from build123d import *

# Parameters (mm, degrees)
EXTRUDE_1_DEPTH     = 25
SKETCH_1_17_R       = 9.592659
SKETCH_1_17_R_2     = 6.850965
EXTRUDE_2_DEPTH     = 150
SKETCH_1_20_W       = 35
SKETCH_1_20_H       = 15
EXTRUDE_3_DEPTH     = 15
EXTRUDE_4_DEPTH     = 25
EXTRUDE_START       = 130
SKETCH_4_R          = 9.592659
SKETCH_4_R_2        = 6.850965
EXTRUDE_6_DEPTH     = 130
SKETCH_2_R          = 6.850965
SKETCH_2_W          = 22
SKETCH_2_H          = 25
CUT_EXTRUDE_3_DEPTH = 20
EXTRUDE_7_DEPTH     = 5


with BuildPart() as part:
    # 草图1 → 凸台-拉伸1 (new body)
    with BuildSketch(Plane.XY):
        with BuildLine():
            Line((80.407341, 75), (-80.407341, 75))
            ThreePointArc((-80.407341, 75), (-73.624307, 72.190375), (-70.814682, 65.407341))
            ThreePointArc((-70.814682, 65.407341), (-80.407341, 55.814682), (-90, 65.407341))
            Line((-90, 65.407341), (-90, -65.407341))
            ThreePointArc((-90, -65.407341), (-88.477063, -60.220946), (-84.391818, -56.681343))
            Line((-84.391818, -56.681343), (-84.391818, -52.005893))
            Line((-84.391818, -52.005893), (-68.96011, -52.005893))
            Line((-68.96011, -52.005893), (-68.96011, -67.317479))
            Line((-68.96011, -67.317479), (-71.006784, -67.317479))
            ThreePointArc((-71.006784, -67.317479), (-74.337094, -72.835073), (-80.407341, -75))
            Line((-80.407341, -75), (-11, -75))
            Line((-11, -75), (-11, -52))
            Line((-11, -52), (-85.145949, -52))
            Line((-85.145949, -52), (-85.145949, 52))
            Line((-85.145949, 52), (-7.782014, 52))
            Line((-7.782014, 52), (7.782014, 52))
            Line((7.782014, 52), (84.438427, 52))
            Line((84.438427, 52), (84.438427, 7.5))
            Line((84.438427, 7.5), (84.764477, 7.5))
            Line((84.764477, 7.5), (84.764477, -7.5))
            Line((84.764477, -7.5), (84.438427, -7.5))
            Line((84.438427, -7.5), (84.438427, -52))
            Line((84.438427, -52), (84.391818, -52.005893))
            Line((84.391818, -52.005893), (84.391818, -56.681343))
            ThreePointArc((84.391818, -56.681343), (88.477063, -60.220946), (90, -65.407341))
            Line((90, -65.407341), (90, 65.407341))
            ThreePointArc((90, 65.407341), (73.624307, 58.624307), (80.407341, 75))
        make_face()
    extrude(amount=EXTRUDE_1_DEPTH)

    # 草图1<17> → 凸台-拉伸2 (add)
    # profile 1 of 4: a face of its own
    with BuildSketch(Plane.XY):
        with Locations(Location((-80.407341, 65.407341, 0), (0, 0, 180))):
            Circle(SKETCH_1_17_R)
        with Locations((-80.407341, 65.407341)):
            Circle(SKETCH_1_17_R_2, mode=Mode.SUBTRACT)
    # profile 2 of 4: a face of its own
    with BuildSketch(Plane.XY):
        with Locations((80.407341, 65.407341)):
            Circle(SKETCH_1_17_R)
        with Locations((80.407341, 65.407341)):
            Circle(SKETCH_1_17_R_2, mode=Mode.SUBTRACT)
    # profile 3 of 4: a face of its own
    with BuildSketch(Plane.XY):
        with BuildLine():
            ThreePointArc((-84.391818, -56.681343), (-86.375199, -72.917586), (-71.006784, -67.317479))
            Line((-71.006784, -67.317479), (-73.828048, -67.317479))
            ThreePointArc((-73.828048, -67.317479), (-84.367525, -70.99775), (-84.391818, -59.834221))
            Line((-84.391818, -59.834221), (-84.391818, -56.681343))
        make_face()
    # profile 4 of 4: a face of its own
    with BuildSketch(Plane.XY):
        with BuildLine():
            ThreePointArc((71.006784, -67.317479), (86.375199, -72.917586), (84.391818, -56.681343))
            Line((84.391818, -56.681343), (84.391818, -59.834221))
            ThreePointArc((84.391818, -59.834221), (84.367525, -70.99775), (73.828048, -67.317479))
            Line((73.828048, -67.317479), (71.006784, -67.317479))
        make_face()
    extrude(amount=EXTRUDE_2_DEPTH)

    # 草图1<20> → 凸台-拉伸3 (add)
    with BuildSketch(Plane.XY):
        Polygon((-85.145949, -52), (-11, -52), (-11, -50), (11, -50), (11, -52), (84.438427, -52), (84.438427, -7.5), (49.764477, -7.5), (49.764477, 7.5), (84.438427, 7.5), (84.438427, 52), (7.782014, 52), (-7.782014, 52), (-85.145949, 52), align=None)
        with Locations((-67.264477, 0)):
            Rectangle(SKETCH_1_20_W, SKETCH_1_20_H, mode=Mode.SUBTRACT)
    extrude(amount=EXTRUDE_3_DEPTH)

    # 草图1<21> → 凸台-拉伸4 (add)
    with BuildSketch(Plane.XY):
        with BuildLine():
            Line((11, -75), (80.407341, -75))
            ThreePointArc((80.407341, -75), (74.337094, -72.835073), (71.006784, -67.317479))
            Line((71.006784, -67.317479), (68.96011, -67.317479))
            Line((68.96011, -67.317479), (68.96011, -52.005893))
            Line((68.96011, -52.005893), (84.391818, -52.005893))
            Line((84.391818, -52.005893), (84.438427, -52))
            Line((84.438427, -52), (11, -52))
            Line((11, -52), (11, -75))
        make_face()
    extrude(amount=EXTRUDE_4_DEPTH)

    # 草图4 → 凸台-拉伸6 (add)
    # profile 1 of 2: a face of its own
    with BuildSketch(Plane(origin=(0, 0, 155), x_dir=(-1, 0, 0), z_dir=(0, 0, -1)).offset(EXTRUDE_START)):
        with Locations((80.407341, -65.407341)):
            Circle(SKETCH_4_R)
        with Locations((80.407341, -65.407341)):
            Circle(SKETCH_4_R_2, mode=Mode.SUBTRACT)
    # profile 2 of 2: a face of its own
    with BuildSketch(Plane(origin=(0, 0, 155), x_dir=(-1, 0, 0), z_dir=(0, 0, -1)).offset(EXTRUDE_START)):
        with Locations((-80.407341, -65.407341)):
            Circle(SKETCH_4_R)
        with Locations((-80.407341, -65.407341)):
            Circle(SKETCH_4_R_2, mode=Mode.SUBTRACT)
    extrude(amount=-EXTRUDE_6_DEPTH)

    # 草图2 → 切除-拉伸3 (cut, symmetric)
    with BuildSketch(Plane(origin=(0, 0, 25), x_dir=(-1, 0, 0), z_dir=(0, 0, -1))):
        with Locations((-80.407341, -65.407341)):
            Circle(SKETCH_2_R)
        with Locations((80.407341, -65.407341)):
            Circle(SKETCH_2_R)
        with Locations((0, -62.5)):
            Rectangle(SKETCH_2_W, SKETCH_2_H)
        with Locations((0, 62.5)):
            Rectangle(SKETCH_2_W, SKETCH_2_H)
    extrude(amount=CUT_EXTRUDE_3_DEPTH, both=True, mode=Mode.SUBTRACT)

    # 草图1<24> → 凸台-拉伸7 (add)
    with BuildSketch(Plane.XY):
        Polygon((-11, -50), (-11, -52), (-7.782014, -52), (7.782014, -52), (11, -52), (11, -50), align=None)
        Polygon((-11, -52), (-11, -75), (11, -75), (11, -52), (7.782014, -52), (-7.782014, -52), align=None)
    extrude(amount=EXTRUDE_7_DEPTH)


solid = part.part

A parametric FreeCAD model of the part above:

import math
import FreeCAD as App
import Part
import Sketcher

V = App.Vector
Q = App.Units.Quantity

doc = App.newDocument("Part")
body = doc.addObject("PartDesign::Body", "Body")

# Sketch on XY plane
sketch1 = doc.addObject("Sketcher::SketchObject", "Sketch")
body.addObject(sketch1)
sketch1.AttachmentSupport = (doc.XY_Plane, [""])
sketch1.MapMode = "FlatFace"
sketch1.addGeometry(Part.LineSegment(V(80.407341, 75, 0), V(-80.407341, 75, 0)), False)
sketch1.addGeometry(Part.ArcOfCircle(Part.Circle(V(-80.407342, 65.40734, 0), V(0, 0, 1), 9.59266), math.radians(0.000005), math.radians(89.999995)), False)
sketch1.addGeometry(Part.ArcOfCircle(Part.Circle(V(-80.407341, 65.407341, 0), V(0, 0, 1), 9.592659), math.radians(180), math.radians(360)), False)
sketch1.addGeometry(Part.LineSegment(V(-90, 65.407341, 0), V(-90, -65.407341, 0)), False)
sketch1.addGeometry(Part.ArcOfCircle(Part.Circle(V(-80.407342, -65.407341, 0), V(0, 0, 1), 9.592658), math.radians(114.542445), math.radians(180.000002)), False)
sketch1.addGeometry(Part.LineSegment(V(-84.391818, -56.681343, 0), V(-84.391818, -52.005893, 0)), False)
sketch1.addGeometry(Part.LineSegment(V(-84.391818, -52.005893, 0), V(-68.96011, -52.005893, 0)), False)
sketch1.addGeometry(Part.LineSegment(V(-68.96011, -52.005893, 0), V(-68.96011, -67.317479, 0)), False)
sketch1.addGeometry(Part.LineSegment(V(-68.96011, -67.317479, 0), V(-71.006784, -67.317479, 0)), False)
sketch1.addGeometry(Part.ArcOfCircle(Part.Circle(V(-80.407341, -65.407341, 0), V(0, 0, 1), 9.592659), math.radians(-89.999997), math.radians(-11.485795)), False)
sketch1.addGeometry(Part.LineSegment(V(-80.407341, -75, 0), V(-11, -75, 0)), False)
sketch1.addGeometry(Part.LineSegment(V(-11, -75, 0), V(-11, -52, 0)), False)
sketch1.addGeometry(Part.LineSegment(V(-11, -52, 0), V(-85.145949, -52, 0)), False)
sketch1.addGeometry(Part.LineSegment(V(-85.145949, -52, 0), V(-85.145949, 52, 0)), False)
sketch1.addGeometry(Part.LineSegment(V(-85.145949, 52, 0), V(84.438427, 52, 0)), False)
sketch1.addGeometry(Part.LineSegment(V(84.438427, 52, 0), V(84.438427, 7.5, 0)), False)
sketch1.addGeometry(Part.LineSegment(V(84.438427, 7.5, 0), V(84.764477, 7.5, 0)), False)
sketch1.addGeometry(Part.LineSegment(V(84.764477, 7.5, 0), V(84.764477, -7.5, 0)), False)
sketch1.addGeometry(Part.LineSegment(V(84.764477, -7.5, 0), V(84.438427, -7.5, 0)), False)
sketch1.addGeometry(Part.LineSegment(V(84.438427, -7.5, 0), V(84.438427, -52, 0)), False)
sketch1.addGeometry(Part.LineSegment(V(84.438427, -52, 0), V(84.391818, -52.005893, 0)), False)
sketch1.addGeometry(Part.LineSegment(V(84.391818, -52.005893, 0), V(84.391818, -56.681343, 0)), False)
sketch1.addGeometry(Part.ArcOfCircle(Part.Circle(V(80.407342, -65.407341, 0), V(0, 0, 1), 9.592658), math.radians(-0.000002), math.radians(65.457555)), False)
sketch1.addGeometry(Part.LineSegment(V(90, -65.407341, 0), V(90, 65.407341, 0)), False)
sketch1.addGeometry(Part.ArcOfCircle(Part.Circle(V(80.407341, 65.407341, 0), V(0, 0, 1), 9.592659), math.radians(90.000001), math.radians(359.999999)), False)
sketch1.addConstraint(Sketcher.Constraint("Tangent", 0, 2, 1, 2))
sketch1.addConstraint(Sketcher.Constraint("Tangent", 1, 1, 2, 2))
sketch1.addConstraint(Sketcher.Constraint("Tangent", 2, 1, 3, 1))
sketch1.addConstraint(Sketcher.Constraint("Tangent", 3, 2, 4, 2))
sketch1.addConstraint(Sketcher.Constraint("Coincident", 4, 1, 5, 1))
sketch1.addConstraint(Sketcher.Constraint("Coincident", 5, 2, 6, 1))
sketch1.addConstraint(Sketcher.Constraint("Coincident", 6, 2, 7, 1))
sketch1.addConstraint(Sketcher.Constraint("Coincident", 7, 2, 8, 1))
sketch1.addConstraint(Sketcher.Constraint("Coincident", 8, 2, 9, 2))
sketch1.addConstraint(Sketcher.Constraint("Tangent", 9, 1, 10, 1))
sketch1.addConstraint(Sketcher.Constraint("Coincident", 10, 2, 11, 1))
sketch1.addConstraint(Sketcher.Constraint("Coincident", 11, 2, 12, 1))
sketch1.addConstraint(Sketcher.Constraint("Coincident", 12, 2, 13, 1))
sketch1.addConstraint(Sketcher.Constraint("Coincident", 13, 2, 14, 1))
sketch1.addConstraint(Sketcher.Constraint("Coincident", 14, 2, 15, 1))
sketch1.addConstraint(Sketcher.Constraint("Coincident", 15, 2, 16, 1))
sketch1.addConstraint(Sketcher.Constraint("Coincident", 16, 2, 17, 1))
sketch1.addConstraint(Sketcher.Constraint("Coincident", 17, 2, 18, 1))
sketch1.addConstraint(Sketcher.Constraint("Coincident", 18, 2, 19, 1))
sketch1.addConstraint(Sketcher.Constraint("Coincident", 19, 2, 20, 1))
sketch1.addConstraint(Sketcher.Constraint("Coincident", 20, 2, 21, 1))
sketch1.addConstraint(Sketcher.Constraint("Coincident", 21, 2, 22, 2))
sketch1.addConstraint(Sketcher.Constraint("Tangent", 22, 1, 23, 1))
sketch1.addConstraint(Sketcher.Constraint("Tangent", 23, 2, 24, 2))
sketch1.addConstraint(Sketcher.Constraint("Tangent", 24, 1, 0, 1))
sketch1.addConstraint(Sketcher.Constraint("Horizontal", 0))
sketch1.addConstraint(Sketcher.Constraint("Vertical", 3))
sketch1.addConstraint(Sketcher.Constraint("Vertical", 5))
sketch1.addConstraint(Sketcher.Constraint("Horizontal", 6))
sketch1.addConstraint(Sketcher.Constraint("Vertical", 7))
sketch1.addConstraint(Sketcher.Constraint("Horizontal", 8))
sketch1.addConstraint(Sketcher.Constraint("Horizontal", 10))
sketch1.addConstraint(Sketcher.Constraint("Vertical", 11))
sketch1.addConstraint(Sketcher.Constraint("Horizontal", 12))
sketch1.addConstraint(Sketcher.Constraint("Vertical", 13))
sketch1.addConstraint(Sketcher.Constraint("Horizontal", 14))
sketch1.addConstraint(Sketcher.Constraint("Vertical", 15))
sketch1.addConstraint(Sketcher.Constraint("Horizontal", 16))
sketch1.addConstraint(Sketcher.Constraint("Vertical", 17))
sketch1.addConstraint(Sketcher.Constraint("Horizontal", 18))
sketch1.addConstraint(Sketcher.Constraint("Vertical", 19))
sketch1.addConstraint(Sketcher.Constraint("Vertical", 21))
sketch1.addConstraint(Sketcher.Constraint("Vertical", 23))
sketch1.addConstraint(Sketcher.Constraint("Coincident", 9, 3, 4, 3))
sketch1.addConstraint(Sketcher.Constraint("Equal", 1, 2))
sketch1.addConstraint(Sketcher.Constraint("Equal", 2, 4))
sketch1.addConstraint(Sketcher.Constraint("Equal", 4, 9))
sketch1.addConstraint(Sketcher.Constraint("Equal", 9, 22))
sketch1.addConstraint(Sketcher.Constraint("Equal", 22, 24))
sketch1.addConstraint(Sketcher.Constraint("Symmetric", 1, 3, 22, 3, -1, 1))
sketch1.addConstraint(Sketcher.Constraint("Symmetric", 5, 2, 20, 2, -2))
sketch1.addConstraint(Sketcher.Constraint("Symmetric", 15, 2, 18, 2, -1))
sketch1.addConstraint(Sketcher.Constraint("Horizontal", 9, 3, 22, 3))
sketch1.addConstraint(Sketcher.Constraint("Horizontal", 24, 3, 1, 1))
sketch1.addConstraint(Sketcher.Constraint("Horizontal", 12, 2, 19, 2))
sketch1.addConstraint(Sketcher.Constraint("Equal", 15, 19))
sketch1.addConstraint(Sketcher.Constraint("DistanceY", 11, 1, 11, 2, Q("23 mm")))
sketch1.addConstraint(Sketcher.Constraint("DistanceY", 13, 1, 13, 2, Q("104 mm")))
sketch1.addConstraint(Sketcher.Constraint("DistanceY", 17, 2, 17, 1, Q("15 mm")))
sketch1.addConstraint(Sketcher.Constraint("DistanceX", 2, 1, -1, 1, Q("90 mm")))
sketch1.addConstraint(Sketcher.Constraint("DistanceX", 10, 2, -1, 1, Q("11 mm")))
sketch1.addConstraint(Sketcher.Constraint("Radius", 1, Q("9.59266 mm")))
sketch1.addConstraint(Sketcher.Constraint("DistanceY", 22, 1, 21, 2, Q("8.725998 mm")))
sketch1.addConstraint(Sketcher.Constraint("DistanceX", 12, 2, 12, 1, Q("74.145949 mm")))
sketch1.addConstraint(Sketcher.Constraint("DistanceX", 16, 1, 16, 2, Q("0.32605 mm")))
sketch1.addConstraint(Sketcher.Constraint("DistanceY", 5, 1, 5, 2, Q("4.67545 mm")))
sketch1.addConstraint(Sketcher.Constraint("Distance", 20, Q("0.04698 mm")))
sketch1.addConstraint(Sketcher.Constraint("DistanceX", 6, 1, 6, 2, Q("15.431708 mm")))
sketch1.addConstraint(Sketcher.Constraint("DistanceX", 8, 2, 8, 1, Q("2.046674 mm")))
pad1 = doc.addObject("PartDesign::Pad", "Pad")
body.addObject(pad1)
pad1.Profile = sketch1
pad1.Length = 25

# Sketch on XY plane
sketch2 = doc.addObject("Sketcher::SketchObject", "Sketch001")
body.addObject(sketch2)
sketch2.AttachmentSupport = (doc.XY_Plane, [""])
sketch2.MapMode = "FlatFace"
sketch2.addGeometry(Part.Circle(V(-80.4, 65.4, 0), V(0, 0, 1), 9.6), False)
sketch2.addGeometry(Part.Circle(V(-80.4, 65.4, 0), V(0, 0, 1), 6.9), False)
sketch2.addGeometry(Part.Circle(V(80.4, 65.4, 0), V(0, 0, 1), 9.6), False)
sketch2.addGeometry(Part.Circle(V(80.4, 65.4, 0), V(0, 0, 1), 6.9), False)
sketch2.addGeometry(Part.ArcOfCircle(Part.Circle(V(-80.4, -65.4, 0), V(0, 0, 1), 9.6), math.radians(115), math.radians(349)), False)
sketch2.addGeometry(Part.LineSegment(V(-71, -67.3, 0), V(-73.8, -67.3, 0)), False)
sketch2.addGeometry(Part.ArcOfCircle(Part.Circle(V(-80.4, -65.4, 0), V(0, 0, 1), 6.9), math.radians(126), math.radians(344)), False)
sketch2.addGeometry(Part.LineSegment(V(-84.4, -59.8, 0), V(-84.4, -56.7, 0)), False)
sketch2.addGeometry(Part.ArcOfCircle(Part.Circle(V(80.4, -65.4, 0), V(0, 0, 1), 9.6), math.radians(-169), math.radians(65)), False)
sketch2.addGeometry(Part.LineSegment(V(84.4, -56.7, 0), V(84.4, -59.8, 0)), False)
sketch2.addGeometry(Part.ArcOfCircle(Part.Circle(V(80.4, -65.4, 0), V(0, 0, 1), 6.9), math.radians(-164), math.radians(54)), False)
sketch2.addGeometry(Part.LineSegment(V(73.8, -67.3, 0), V(71, -67.3, 0)), False)
sketch2.addConstraint(Sketcher.Constraint("Coincident", 4, 2, 5, 1))
sketch2.addConstraint(Sketcher.Constraint("Coincident", 5, 2, 6, 2))
sketch2.addConstraint(Sketcher.Constraint("Coincident", 6, 1, 7, 1))
sketch2.addConstraint(Sketcher.Constraint("Coincident", 7, 2, 4, 1))
sketch2.addConstraint(Sketcher.Constraint("Coincident", 8, 2, 9, 1))
sketch2.addConstraint(Sketcher.Constraint("Coincident", 9, 2, 10, 2))
sketch2.addConstraint(Sketcher.Constraint("Coincident", 10, 1, 11, 1))
sketch2.addConstraint(Sketcher.Constraint("Coincident", 11, 2, 8, 1))
sketch2.addConstraint(Sketcher.Constraint("Horizontal", 5))
sketch2.addConstraint(Sketcher.Constraint("Vertical", 7))
sketch2.addConstraint(Sketcher.Constraint("Vertical", 9))
sketch2.addConstraint(Sketcher.Constraint("Horizontal", 11))
sketch2.addConstraint(Sketcher.Constraint("Coincident", 1, 3, 0, 3))
sketch2.addConstraint(Sketcher.Constraint("Coincident", 3, 3, 2, 3))
sketch2.addConstraint(Sketcher.Constraint("Coincident", 6, 3, 4, 3))
sketch2.addConstraint(Sketcher.Constraint("Coincident", 10, 3, 8, 3))
sketch2.addConstraint(Sketcher.Constraint("Equal", 0, 2))
sketch2.addConstraint(Sketcher.Constraint("Equal", 1, 3))
sketch2.addConstraint(Sketcher.Constraint("Equal", 2, 4))
sketch2.addConstraint(Sketcher.Constraint("Equal", 3, 6))
sketch2.addConstraint(Sketcher.Constraint("Equal", 4, 8))
sketch2.addConstraint(Sketcher.Constraint("Equal", 6, 10))
sketch2.addConstraint(Sketcher.Constraint("Symmetric", 2, 3, 4, 3, -1, 1))
sketch2.addConstraint(Sketcher.Constraint("Symmetric", 0, 3, 8, 3, -1, 1))
sketch2.addConstraint(Sketcher.Constraint("Symmetric", 0, 3, 2, 3, -2))
sketch2.addConstraint(Sketcher.Constraint("Horizontal", 7, 2, 8, 2))
sketch2.addConstraint(Sketcher.Constraint("Horizontal", 5, 2, 10, 1))
sketch2.addConstraint(Sketcher.Constraint("Diameter", 1, Q("13.70193 mm")))
sketch2.addConstraint(Sketcher.Constraint("Radius", 4, Q("9.592659 mm")))
sketch2.addConstraint(Sketcher.Constraint("DistanceY", 6, 3, 7, 2, Q("8.725998 mm")))
sketch2.addConstraint(Sketcher.Constraint("DistanceX", 4, 2, 8, 2, Q("155.398602 mm")))
sketch2.addConstraint(Sketcher.Constraint("DistanceX", 5, 2, 5, 1, Q("2.821264 mm")))
sketch2.addConstraint(Sketcher.Constraint("DistanceY", -1, 1, 0, 3, Q("65.407341 mm")))
pad2 = doc.addObject("PartDesign::Pad", "Pad001")
body.addObject(pad2)
pad2.Profile = sketch2
pad2.Length = 150

# Sketch on XY plane
sketch3 = doc.addObject("Sketcher::SketchObject", "Sketch002")
body.addObject(sketch3)
sketch3.AttachmentSupport = (doc.XY_Plane, [""])
sketch3.MapMode = "FlatFace"
sketch3.addGeometry(Part.LineSegment(V(-85.1, -52, 0), V(-11, -52, 0)), False)
sketch3.addGeometry(Part.LineSegment(V(-11, -52, 0), V(-11, -50, 0)), False)
sketch3.addGeometry(Part.LineSegment(V(-11, -50, 0), V(11, -50, 0)), False)
sketch3.addGeometry(Part.LineSegment(V(11, -50, 0), V(11, -52, 0)), False)
sketch3.addGeometry(Part.LineSegment(V(11, -52, 0), V(84.4, -52, 0)), False)
sketch3.addGeometry(Part.LineSegment(V(84.4, -52, 0), V(84.4, -7.5, 0)), False)
sketch3.addGeometry(Part.LineSegment(V(84.4, -7.5, 0), V(49.8, -7.5, 0)), False)
sketch3.addGeometry(Part.LineSegment(V(49.8, -7.5, 0), V(49.8, 7.5, 0)), False)
sketch3.addGeometry(Part.LineSegment(V(49.8, 7.5, 0), V(84.4, 7.5, 0)), False)
sketch3.addGeometry(Part.LineSegment(V(84.4, 7.5, 0), V(84.4, 52, 0)), False)
sketch3.addGeometry(Part.LineSegment(V(84.4, 52, 0), V(-85.1, 52, 0)), False)
sketch3.addGeometry(Part.LineSegment(V(-85.1, 52, 0), V(-85.1, -52, 0)), False)
sketch3.addGeometry(Part.LineSegment(V(-49.8, -7.5, 0), V(-84.8, -7.5, 0)), False)
sketch3.addGeometry(Part.LineSegment(V(-84.8, -7.5, 0), V(-84.8, 7.5, 0)), False)
sketch3.addGeometry(Part.LineSegment(V(-84.8, 7.5, 0), V(-49.8, 7.5, 0)), False)
sketch3.addGeometry(Part.LineSegment(V(-49.8, 7.5, 0), V(-49.8, -7.5, 0)), False)
sketch3.addConstraint(Sketcher.Constraint("Coincident", 0, 2, 1, 1))
sketch3.addConstraint(Sketcher.Constraint("Coincident", 1, 2, 2, 1))
sketch3.addConstraint(Sketcher.Constraint("Coincident", 2, 2, 3, 1))
sketch3.addConstraint(Sketcher.Constraint("Coincident", 3, 2, 4, 1))
sketch3.addConstraint(Sketcher.Constraint("Coincident", 4, 2, 5, 1))
sketch3.addConstraint(Sketcher.Constraint("Coincident", 5, 2, 6, 1))
sketch3.addConstraint(Sketcher.Constraint("Coincident", 6, 2, 7, 1))
sketch3.addConstraint(Sketcher.Constraint("Coincident", 7, 2, 8, 1))
sketch3.addConstraint(Sketcher.Constraint("Coincident", 8, 2, 9, 1))
sketch3.addConstraint(Sketcher.Constraint("Coincident", 9, 2, 10, 1))
sketch3.addConstraint(Sketcher.Constraint("Coincident", 10, 2, 11, 1))
sketch3.addConstraint(Sketcher.Constraint("Coincident", 11, 2, 0, 1))
sketch3.addConstraint(Sketcher.Constraint("Coincident", 12, 2, 13, 1))
sketch3.addConstraint(Sketcher.Constraint("Coincident", 13, 2, 14, 1))
sketch3.addConstraint(Sketcher.Constraint("Coincident", 14, 2, 15, 1))
sketch3.addConstraint(Sketcher.Constraint("Coincident", 15, 2, 12, 1))
sketch3.addConstraint(Sketcher.Constraint("Horizontal", 0))
sketch3.addConstraint(Sketcher.Constraint("Vertical", 1))
sketch3.addConstraint(Sketcher.Constraint("Horizontal", 2))
sketch3.addConstraint(Sketcher.Constraint("Vertical", 3))
sketch3.addConstraint(Sketcher.Constraint("Horizontal", 4))
sketch3.addConstraint(Sketcher.Constraint("Vertical", 5))
sketch3.addConstraint(Sketcher.Constraint("Horizontal", 6))
sketch3.addConstraint(Sketcher.Constraint("Vertical", 7))
sketch3.addConstraint(Sketcher.Constraint("Horizontal", 8))
sketch3.addConstraint(Sketcher.Constraint("Vertical", 9))
sketch3.addConstraint(Sketcher.Constraint("Horizontal", 10))
sketch3.addConstraint(Sketcher.Constraint("Vertical", 11))
sketch3.addConstraint(Sketcher.Constraint("Horizontal", 12))
sketch3.addConstraint(Sketcher.Constraint("Vertical", 13))
sketch3.addConstraint(Sketcher.Constraint("Horizontal", 14))
sketch3.addConstraint(Sketcher.Constraint("Vertical", 15))
sketch3.addConstraint(Sketcher.Constraint("Symmetric", 6, 2, 14, 2, -1, 1))
sketch3.addConstraint(Sketcher.Constraint("Symmetric", 0, 2, 3, 2, -2))
sketch3.addConstraint(Sketcher.Constraint("Symmetric", 5, 2, 8, 2, -1))
sketch3.addConstraint(Sketcher.Constraint("Horizontal", 6, 2, 12, 2))
sketch3.addConstraint(Sketcher.Constraint("Equal", 5, 9))
sketch3.addConstraint(Sketcher.Constraint("DistanceX", 2, 1, 2, 2, Q("22 mm")))
sketch3.addConstraint(Sketcher.Constraint("DistanceX", 12, 2, 12, 1, Q("35 mm")))
sketch3.addConstraint(Sketcher.Constraint("DistanceY", 1, 1, 1, 2, Q("2 mm")))
sketch3.addConstraint(Sketcher.Constraint("DistanceY", 7, 1, 7, 2, Q("15 mm")))
sketch3.addConstraint(Sketcher.Constraint("DistanceY", 11, 2, 11, 1, Q("104 mm")))
sketch3.addConstraint(Sketcher.Constraint("DistanceX", 0, 1, 0, 2, Q("74.145949 mm")))
sketch3.addConstraint(Sketcher.Constraint("DistanceX", 6, 2, 6, 1, Q("34.67395 mm")))
sketch3.addConstraint(Sketcher.Constraint("DistanceX", 4, 1, 4, 2, Q("73.438427 mm")))
pad3 = doc.addObject("PartDesign::Pad", "Pad002")
body.addObject(pad3)
pad3.Profile = sketch3
pad3.Length = 15

# Sketch on XY plane
sketch4 = doc.addObject("Sketcher::SketchObject", "Sketch003")
body.addObject(sketch4)
sketch4.AttachmentSupport = (doc.XY_Plane, [""])
sketch4.MapMode = "FlatFace"
sketch4.addGeometry(Part.LineSegment(V(11, -75, 0), V(80.407, -75, 0)), False)
sketch4.addGeometry(Part.ArcOfCircle(Part.Circle(V(80.407, -65.407, 0), V(0, 0, 1), 9.593), math.radians(-169), math.radians(-90)), False)
sketch4.addGeometry(Part.LineSegment(V(71.007, -67.317, 0), V(68.96, -67.317, 0)), False)
sketch4.addGeometry(Part.LineSegment(V(68.96, -67.317, 0), V(68.96, -52.006, 0)), False)
sketch4.addGeometry(Part.LineSegment(V(68.96, -52.006, 0), V(84.392, -52.006, 0)), False)
sketch4.addGeometry(Part.LineSegment(V(84.392, -52.006, 0), V(84.438, -52, 0)), False)
sketch4.addGeometry(Part.LineSegment(V(84.438, -52, 0), V(11, -52, 0)), False)
sketch4.addGeometry(Part.LineSegment(V(11, -52, 0), V(11, -75, 0)), False)
sketch4.addConstraint(Sketcher.Constraint("Tangent", 0, 2, 1, 2))
sketch4.addConstraint(Sketcher.Constraint("Coincident", 1, 1, 2, 1))
sketch4.addConstraint(Sketcher.Constraint("Coincident", 2, 2, 3, 1))
sketch4.addConstraint(Sketcher.Constraint("Coincident", 3, 2, 4, 1))
sketch4.addConstraint(Sketcher.Constraint("Coincident", 4, 2, 5, 1))
sketch4.addConstraint(Sketcher.Constraint("Coincident", 5, 2, 6, 1))
sketch4.addConstraint(Sketcher.Constraint("Coincident", 6, 2, 7, 1))
sketch4.addConstraint(Sketcher.Constraint("Coincident", 7, 2, 0, 1))
sketch4.addConstraint(Sketcher.Constraint("Horizontal", 0))
sketch4.addConstraint(Sketcher.Constraint("Horizontal", 2))
sketch4.addConstraint(Sketcher.Constraint("Vertical", 3))
sketch4.addConstraint(Sketcher.Constraint("Horizontal", 4))
sketch4.addConstraint(Sketcher.Constraint("Horizontal", 6))
sketch4.addConstraint(Sketcher.Constraint("Vertical", 7))
sketch4.addConstraint(Sketcher.Constraint("DistanceY", 7, 2, 7, 1, Q("23 mm")))
sketch4.addConstraint(Sketcher.Constraint("DistanceY", 0, 2, -1, 1, Q("75 mm")))
sketch4.addConstraint(Sketcher.Constraint("DistanceX", -1, 1, 6, 2, Q("11 mm")))
sketch4.addConstraint(Sketcher.Constraint("Radius", 1, Q("9.592659 mm")))
sketch4.addConstraint(Sketcher.Constraint("DistanceX", 0, 1, 0, 2, Q("69.407341 mm")))
sketch4.addConstraint(Sketcher.Constraint("Distance", 5, Q("0.04698 mm")))
sketch4.addConstraint(Sketcher.Constraint("DistanceX", 2, 2, 2, 1, Q("2.046674 mm")))
sketch4.addConstraint(Sketcher.Constraint("DistanceX", 4, 1, 4, 2, Q("15.431708 mm")))
sketch4.addConstraint(Sketcher.Constraint("DistanceX", 6, 2, 6, 1, Q("73.438427 mm")))
sketch4.addConstraint(Sketcher.Constraint("DistanceY", 3, 1, 3, 2, Q("15.311586 mm")))
pad4 = doc.addObject("PartDesign::Pad", "Pad003")
body.addObject(pad4)
pad4.Profile = sketch4
pad4.Length = 25

# Sketch on XY plane
sketch5 = doc.addObject("Sketcher::SketchObject", "Sketch004")
body.addObject(sketch5)
sketch5.AttachmentSupport = (doc.XY_Plane, [""])
sketch5.MapMode = "FlatFace"
sketch5.AttachmentOffset = App.Placement(V(0, 0, 25), App.Rotation())
sketch5.addGeometry(Part.Circle(V(-80, -65, 0), V(0, 0, 1), 10), False)
sketch5.addGeometry(Part.Circle(V(-80, -65, 0), V(0, 0, 1), 7), False)
sketch5.addGeometry(Part.Circle(V(80, -65, 0), V(0, 0, 1), 10), False)
sketch5.addGeometry(Part.Circle(V(80, -65, 0), V(0, 0, 1), 7), False)
sketch5.addConstraint(Sketcher.Constraint("Coincident", 1, 3, 0, 3))
sketch5.addConstraint(Sketcher.Constraint("Coincident", 3, 3, 2, 3))
sketch5.addConstraint(Sketcher.Constraint("Equal", 0, 2))
sketch5.addConstraint(Sketcher.Constraint("Equal", 1, 3))
sketch5.addConstraint(Sketcher.Constraint("Symmetric", 0, 3, 2, 3, -2))
sketch5.addConstraint(Sketcher.Constraint("Diameter", 1, Q("13.70193 mm")))
sketch5.addConstraint(Sketcher.Constraint("Diameter", 0, Q("19.185318 mm")))
sketch5.addConstraint(Sketcher.Constraint("DistanceX", 0, 3, -1, 1, Q("80.407341 mm")))
sketch5.addConstraint(Sketcher.Constraint("DistanceY", 0, 3, -1, 1, Q("65.407341 mm")))
pad5 = doc.addObject("PartDesign::Pad", "Pad004")
body.addObject(pad5)
pad5.Profile = sketch5
pad5.Length = 130

# Sketch on XY plane
sketch6 = doc.addObject("Sketcher::SketchObject", "Sketch005")
body.addObject(sketch6)
sketch6.AttachmentSupport = (doc.XY_Plane, [""])
sketch6.MapMode = "FlatFace"
sketch6.AttachmentOffset = App.Placement(V(0, 0, 25), App.Rotation())
sketch6.addGeometry(Part.Circle(V(80, -65, 0), V(0, 0, 1), 7), False)
sketch6.addGeometry(Part.Circle(V(-80, -65, 0), V(0, 0, 1), 7), False)
sketch6.addGeometry(Part.LineSegment(V(11, -50, 0), V(11, -75, 0)), False)
sketch6.addGeometry(Part.LineSegment(V(11, -75, 0), V(-11, -75, 0)), False)
sketch6.addGeometry(Part.LineSegment(V(-11, -75, 0), V(-11, -50, 0)), False)
sketch6.addGeometry(Part.LineSegment(V(-11, -50, 0), V(11, -50, 0)), False)
sketch6.addGeometry(Part.LineSegment(V(11, 75, 0), V(11, 50, 0)), False)
sketch6.addGeometry(Part.LineSegment(V(11, 50, 0), V(-11, 50, 0)), False)
sketch6.addGeometry(Part.LineSegment(V(-11, 50, 0), V(-11, 75, 0)), False)
sketch6.addGeometry(Part.LineSegment(V(-11, 75, 0), V(11, 75, 0)), False)
sketch6.addConstraint(Sketcher.Constraint("Coincident", 2, 2, 3, 1))
sketch6.addConstraint(Sketcher.Constraint("Coincident", 3, 2, 4, 1))
sketch6.addConstraint(Sketcher.Constraint("Coincident", 4, 2, 5, 1))
sketch6.addConstraint(Sketcher.Constraint("Coincident", 5, 2, 2, 1))
sketch6.addConstraint(Sketcher.Constraint("Coincident", 6, 2, 7, 1))
sketch6.addConstraint(Sketcher.Constraint("Coincident", 7, 2, 8, 1))
sketch6.addConstraint(Sketcher.Constraint("Coincident", 8, 2, 9, 1))
sketch6.addConstraint(Sketcher.Constraint("Coincident", 9, 2, 6, 1))
sketch6.addConstraint(Sketcher.Constraint("Vertical", 2))
sketch6.addConstraint(Sketcher.Constraint("Horizontal", 3))
sketch6.addConstraint(Sketcher.Constraint("Vertical", 4))
sketch6.addConstraint(Sketcher.Constraint("Horizontal", 5))
sketch6.addConstraint(Sketcher.Constraint("Vertical", 6))
sketch6.addConstraint(Sketcher.Constraint("Horizontal", 7))
sketch6.addConstraint(Sketcher.Constraint("Vertical", 8))
sketch6.addConstraint(Sketcher.Constraint("Horizontal", 9))
sketch6.addConstraint(Sketcher.Constraint("Equal", 0, 1))
sketch6.addConstraint(Sketcher.Constraint("Symmetric", 4, 2, 6, 2, -1, 1))
sketch6.addConstraint(Sketcher.Constraint("Symmetric", 2, 2, 8, 2, -1, 1))
sketch6.addConstraint(Sketcher.Constraint("Symmetric", 0, 3, 1, 3, -2))
sketch6.addConstraint(Sketcher.Constraint("Vertical", 5, 2, 6, 2))
sketch6.addConstraint(Sketcher.Constraint("DistanceX", 3, 2, 3, 1, Q("22 mm")))
sketch6.addConstraint(Sketcher.Constraint("DistanceY", 2, 2, 2, 1, Q("25 mm")))
sketch6.addConstraint(Sketcher.Constraint("DistanceY", 2, 2, -1, 1, Q("75 mm")))
sketch6.addConstraint(Sketcher.Constraint("Diameter", 0, Q("13.70193 mm")))
sketch6.addConstraint(Sketcher.Constraint("DistanceX", -1, 1, 0, 3, Q("80.407341 mm")))
sketch6.addConstraint(Sketcher.Constraint("DistanceY", 0, 3, -1, 1, Q("65.407341 mm")))
pocket1 = doc.addObject("PartDesign::Pocket", "Pocket")
body.addObject(pocket1)
pocket1.Profile = sketch6
pocket1.Length = 40
pocket1.Midplane = True

# Sketch on XY plane
sketch7 = doc.addObject("Sketcher::SketchObject", "Sketch006")
body.addObject(sketch7)
sketch7.AttachmentSupport = (doc.XY_Plane, [""])
sketch7.MapMode = "FlatFace"
sketch7.addGeometry(Part.LineSegment(V(-11, -50, 0), V(-11, -75, 0)), False)
sketch7.addGeometry(Part.LineSegment(V(-11, -75, 0), V(11, -75, 0)), False)
sketch7.addGeometry(Part.LineSegment(V(11, -75, 0), V(11, -50, 0)), False)
sketch7.addGeometry(Part.LineSegment(V(11, -50, 0), V(-11, -50, 0)), False)
sketch7.addConstraint(Sketcher.Constraint("Coincident", 0, 2, 1, 1))
sketch7.addConstraint(Sketcher.Constraint("Coincident", 1, 2, 2, 1))
sketch7.addConstraint(Sketcher.Constraint("Coincident", 2, 2, 3, 1))
sketch7.addConstraint(Sketcher.Constraint("Coincident", 3, 2, 0, 1))
sketch7.addConstraint(Sketcher.Constraint("Vertical", 0))
sketch7.addConstraint(Sketcher.Constraint("Horizontal", 1))
sketch7.addConstraint(Sketcher.Constraint("Vertical", 2))
sketch7.addConstraint(Sketcher.Constraint("Horizontal", 3))
sketch7.addConstraint(Sketcher.Constraint("DistanceX", 1, 1, 1, 2, Q("22 mm")))
sketch7.addConstraint(Sketcher.Constraint("DistanceY", 0, 2, 0, 1, Q("25 mm")))
sketch7.addConstraint(Sketcher.Constraint("DistanceX", 0, 2, -1, 1, Q("11 mm")))
sketch7.addConstraint(Sketcher.Constraint("DistanceY", 0, 2, -1, 1, Q("75 mm")))
pad6 = doc.addObject("PartDesign::Pad", "Pad005")
body.addObject(pad6)
pad6.Profile = sketch7
pad6.Length = 5

doc.recompute()
